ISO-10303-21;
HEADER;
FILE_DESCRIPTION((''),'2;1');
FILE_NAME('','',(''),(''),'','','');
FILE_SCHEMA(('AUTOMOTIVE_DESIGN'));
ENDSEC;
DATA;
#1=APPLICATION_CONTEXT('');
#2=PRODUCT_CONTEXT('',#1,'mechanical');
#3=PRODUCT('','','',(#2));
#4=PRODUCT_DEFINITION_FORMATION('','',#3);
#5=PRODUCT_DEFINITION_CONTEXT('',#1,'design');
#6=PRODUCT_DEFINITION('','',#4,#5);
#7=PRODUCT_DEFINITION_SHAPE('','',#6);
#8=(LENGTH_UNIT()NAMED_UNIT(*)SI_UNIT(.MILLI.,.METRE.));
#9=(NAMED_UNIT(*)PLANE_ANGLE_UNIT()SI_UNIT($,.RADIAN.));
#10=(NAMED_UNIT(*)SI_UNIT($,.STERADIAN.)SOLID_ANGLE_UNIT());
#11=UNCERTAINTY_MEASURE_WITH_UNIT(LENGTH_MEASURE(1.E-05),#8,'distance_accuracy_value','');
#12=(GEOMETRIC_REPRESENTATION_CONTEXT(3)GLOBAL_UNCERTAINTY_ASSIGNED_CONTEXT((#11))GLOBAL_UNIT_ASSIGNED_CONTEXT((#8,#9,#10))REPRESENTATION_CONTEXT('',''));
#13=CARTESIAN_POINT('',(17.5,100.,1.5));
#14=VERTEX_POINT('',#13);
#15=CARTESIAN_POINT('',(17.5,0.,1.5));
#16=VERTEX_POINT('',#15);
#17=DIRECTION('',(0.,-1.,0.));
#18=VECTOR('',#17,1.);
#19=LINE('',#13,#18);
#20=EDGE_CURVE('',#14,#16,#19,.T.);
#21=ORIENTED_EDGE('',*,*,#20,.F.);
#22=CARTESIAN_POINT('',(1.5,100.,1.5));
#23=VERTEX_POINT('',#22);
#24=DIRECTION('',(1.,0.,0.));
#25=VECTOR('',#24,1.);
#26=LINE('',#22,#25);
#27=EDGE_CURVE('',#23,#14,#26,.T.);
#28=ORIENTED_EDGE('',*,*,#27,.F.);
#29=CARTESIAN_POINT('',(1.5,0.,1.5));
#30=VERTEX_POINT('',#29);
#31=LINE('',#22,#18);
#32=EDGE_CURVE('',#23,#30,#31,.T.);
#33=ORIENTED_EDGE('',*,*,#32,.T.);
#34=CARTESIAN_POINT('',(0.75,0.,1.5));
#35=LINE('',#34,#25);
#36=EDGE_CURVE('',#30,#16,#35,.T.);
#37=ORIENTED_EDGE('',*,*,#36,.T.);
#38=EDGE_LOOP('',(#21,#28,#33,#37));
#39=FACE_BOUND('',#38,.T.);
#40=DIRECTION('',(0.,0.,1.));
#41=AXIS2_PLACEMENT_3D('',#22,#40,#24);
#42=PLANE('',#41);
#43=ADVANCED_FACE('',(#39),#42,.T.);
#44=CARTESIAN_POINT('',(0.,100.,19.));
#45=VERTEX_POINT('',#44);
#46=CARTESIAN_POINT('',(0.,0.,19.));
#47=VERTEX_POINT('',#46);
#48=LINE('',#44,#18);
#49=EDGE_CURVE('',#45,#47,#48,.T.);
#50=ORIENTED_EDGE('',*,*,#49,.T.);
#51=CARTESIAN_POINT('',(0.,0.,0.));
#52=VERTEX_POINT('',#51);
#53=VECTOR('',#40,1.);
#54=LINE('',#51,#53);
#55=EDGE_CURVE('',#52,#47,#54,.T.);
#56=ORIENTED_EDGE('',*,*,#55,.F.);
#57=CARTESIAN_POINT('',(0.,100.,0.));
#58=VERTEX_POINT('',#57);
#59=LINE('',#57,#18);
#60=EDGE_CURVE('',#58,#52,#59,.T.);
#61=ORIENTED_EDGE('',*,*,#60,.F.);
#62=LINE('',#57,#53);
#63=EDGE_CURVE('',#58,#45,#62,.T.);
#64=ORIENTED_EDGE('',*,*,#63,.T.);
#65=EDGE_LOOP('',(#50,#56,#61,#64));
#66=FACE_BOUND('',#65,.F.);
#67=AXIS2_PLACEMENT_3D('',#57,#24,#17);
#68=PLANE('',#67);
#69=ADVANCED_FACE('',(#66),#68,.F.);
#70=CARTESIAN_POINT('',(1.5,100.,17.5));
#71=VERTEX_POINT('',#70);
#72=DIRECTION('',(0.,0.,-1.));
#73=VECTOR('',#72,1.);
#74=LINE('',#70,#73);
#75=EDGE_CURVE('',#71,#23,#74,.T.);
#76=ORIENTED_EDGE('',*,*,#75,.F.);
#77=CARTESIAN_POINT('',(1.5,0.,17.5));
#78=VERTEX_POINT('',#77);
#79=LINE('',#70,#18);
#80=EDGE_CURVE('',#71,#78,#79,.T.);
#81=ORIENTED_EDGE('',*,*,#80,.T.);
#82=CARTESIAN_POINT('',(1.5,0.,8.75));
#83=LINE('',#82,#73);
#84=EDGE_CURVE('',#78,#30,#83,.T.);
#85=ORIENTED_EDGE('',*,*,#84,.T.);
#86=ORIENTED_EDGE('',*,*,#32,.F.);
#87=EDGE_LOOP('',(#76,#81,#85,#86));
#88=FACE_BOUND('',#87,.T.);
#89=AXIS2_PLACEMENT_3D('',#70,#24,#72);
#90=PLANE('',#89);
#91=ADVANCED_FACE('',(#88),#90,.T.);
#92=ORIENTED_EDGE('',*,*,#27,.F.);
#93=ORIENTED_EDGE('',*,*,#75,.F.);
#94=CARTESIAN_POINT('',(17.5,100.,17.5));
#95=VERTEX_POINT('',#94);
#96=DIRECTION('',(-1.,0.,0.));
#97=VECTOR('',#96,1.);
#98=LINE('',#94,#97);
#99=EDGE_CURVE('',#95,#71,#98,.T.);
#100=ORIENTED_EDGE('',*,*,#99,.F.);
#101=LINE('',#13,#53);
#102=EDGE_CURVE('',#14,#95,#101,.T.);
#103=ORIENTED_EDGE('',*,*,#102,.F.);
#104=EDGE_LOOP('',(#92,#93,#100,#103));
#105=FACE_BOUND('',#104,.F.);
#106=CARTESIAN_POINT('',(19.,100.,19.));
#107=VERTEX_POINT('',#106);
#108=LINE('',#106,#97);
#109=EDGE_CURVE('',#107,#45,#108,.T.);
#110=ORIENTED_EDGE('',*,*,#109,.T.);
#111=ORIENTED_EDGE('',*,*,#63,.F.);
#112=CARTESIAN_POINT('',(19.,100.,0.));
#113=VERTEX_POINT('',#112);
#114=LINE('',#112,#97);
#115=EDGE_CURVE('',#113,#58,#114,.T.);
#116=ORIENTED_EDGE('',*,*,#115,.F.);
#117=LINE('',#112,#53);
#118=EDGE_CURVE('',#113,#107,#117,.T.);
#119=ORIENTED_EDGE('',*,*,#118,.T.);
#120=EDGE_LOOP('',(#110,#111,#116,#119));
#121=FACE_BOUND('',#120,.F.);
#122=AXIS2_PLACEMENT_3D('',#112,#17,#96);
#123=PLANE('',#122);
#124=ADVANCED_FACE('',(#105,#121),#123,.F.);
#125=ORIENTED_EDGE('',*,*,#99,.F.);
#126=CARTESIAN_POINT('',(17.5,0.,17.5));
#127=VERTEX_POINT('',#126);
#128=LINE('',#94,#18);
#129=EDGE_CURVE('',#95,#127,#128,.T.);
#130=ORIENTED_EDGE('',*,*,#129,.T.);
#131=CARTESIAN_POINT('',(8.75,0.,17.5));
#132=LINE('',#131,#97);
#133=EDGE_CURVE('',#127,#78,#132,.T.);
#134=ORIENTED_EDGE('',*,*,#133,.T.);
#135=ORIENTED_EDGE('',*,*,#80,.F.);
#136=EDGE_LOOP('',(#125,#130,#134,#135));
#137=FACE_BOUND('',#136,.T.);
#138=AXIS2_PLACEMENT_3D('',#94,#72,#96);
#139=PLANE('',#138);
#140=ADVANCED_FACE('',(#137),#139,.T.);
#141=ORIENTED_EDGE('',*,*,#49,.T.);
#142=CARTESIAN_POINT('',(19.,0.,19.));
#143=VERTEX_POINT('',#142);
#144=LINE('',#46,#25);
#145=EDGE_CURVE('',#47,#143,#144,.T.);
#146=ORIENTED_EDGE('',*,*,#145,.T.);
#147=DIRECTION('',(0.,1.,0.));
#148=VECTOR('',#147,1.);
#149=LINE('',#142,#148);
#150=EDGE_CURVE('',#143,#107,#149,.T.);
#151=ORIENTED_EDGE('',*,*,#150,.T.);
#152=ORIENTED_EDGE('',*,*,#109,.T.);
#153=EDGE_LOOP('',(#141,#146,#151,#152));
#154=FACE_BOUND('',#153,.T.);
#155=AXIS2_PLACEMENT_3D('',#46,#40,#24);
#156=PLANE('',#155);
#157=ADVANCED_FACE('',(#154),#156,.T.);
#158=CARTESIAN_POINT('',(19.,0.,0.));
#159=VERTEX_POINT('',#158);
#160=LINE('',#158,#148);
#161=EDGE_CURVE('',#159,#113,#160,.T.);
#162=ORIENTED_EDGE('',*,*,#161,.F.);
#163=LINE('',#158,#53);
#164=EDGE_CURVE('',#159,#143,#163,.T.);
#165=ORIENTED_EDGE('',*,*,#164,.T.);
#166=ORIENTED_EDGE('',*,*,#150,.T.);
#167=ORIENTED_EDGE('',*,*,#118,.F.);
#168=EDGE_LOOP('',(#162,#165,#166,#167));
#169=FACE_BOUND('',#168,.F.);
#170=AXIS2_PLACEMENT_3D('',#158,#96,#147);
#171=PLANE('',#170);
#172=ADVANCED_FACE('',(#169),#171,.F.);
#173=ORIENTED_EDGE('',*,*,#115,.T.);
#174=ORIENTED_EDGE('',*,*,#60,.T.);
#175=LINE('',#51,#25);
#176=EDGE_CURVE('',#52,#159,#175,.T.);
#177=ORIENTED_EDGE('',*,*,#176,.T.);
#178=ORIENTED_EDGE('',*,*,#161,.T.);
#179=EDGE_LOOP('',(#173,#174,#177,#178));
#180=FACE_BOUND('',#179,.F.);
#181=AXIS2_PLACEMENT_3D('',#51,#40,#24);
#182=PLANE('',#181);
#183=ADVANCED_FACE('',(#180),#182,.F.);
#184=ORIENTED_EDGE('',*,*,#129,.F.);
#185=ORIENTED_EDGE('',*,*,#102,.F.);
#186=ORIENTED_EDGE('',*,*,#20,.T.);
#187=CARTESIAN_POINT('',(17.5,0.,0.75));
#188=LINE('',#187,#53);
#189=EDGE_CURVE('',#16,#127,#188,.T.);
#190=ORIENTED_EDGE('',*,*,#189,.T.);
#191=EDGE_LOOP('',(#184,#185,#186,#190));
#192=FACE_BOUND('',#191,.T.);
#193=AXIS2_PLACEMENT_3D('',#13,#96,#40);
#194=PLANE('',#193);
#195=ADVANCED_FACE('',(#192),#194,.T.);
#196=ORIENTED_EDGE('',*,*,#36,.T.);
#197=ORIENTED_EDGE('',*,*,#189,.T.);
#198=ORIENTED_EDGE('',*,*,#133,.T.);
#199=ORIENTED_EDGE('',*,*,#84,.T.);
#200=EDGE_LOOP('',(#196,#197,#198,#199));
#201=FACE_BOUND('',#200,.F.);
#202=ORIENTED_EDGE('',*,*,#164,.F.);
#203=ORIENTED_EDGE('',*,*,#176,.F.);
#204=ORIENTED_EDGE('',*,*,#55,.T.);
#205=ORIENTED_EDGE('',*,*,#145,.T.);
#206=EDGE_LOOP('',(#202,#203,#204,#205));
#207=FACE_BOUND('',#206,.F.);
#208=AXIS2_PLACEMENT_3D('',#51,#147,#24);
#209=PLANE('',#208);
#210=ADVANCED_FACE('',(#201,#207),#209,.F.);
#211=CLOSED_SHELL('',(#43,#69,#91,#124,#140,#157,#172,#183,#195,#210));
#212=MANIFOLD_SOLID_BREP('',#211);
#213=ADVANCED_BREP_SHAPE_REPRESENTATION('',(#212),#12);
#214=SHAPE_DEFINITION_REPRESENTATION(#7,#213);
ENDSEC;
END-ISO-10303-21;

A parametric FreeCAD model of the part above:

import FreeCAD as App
import Part
import Sketcher

doc = App.newDocument("Part")
body = doc.addObject("PartDesign::Body", "Body")

# Sketch on XY plane
sketch1 = body.newObject("Sketcher::SketchObject", "Sketch")
sketch1.AttachmentSupport = (doc.getObject("XY_Plane"), [""])
sketch1.MapMode = "FlatFace"
sketch1.addGeometry(Part.LineSegment(App.Vector(0, 100, 0), App.Vector(0, 0, 0)), False)
sketch1.addGeometry(Part.LineSegment(App.Vector(0, 0, 0), App.Vector(19, 0, 0)), False)
sketch1.addGeometry(Part.LineSegment(App.Vector(19, 0, 0), App.Vector(19, 100, 0)), False)
sketch1.addGeometry(Part.LineSegment(App.Vector(19, 100, 0), App.Vector(0, 100, 0)), False)
sketch1.addConstraint(Sketcher.Constraint("Coincident", 0, 2, 1, 1))
sketch1.addConstraint(Sketcher.Constraint("Coincident", 1, 2, 2, 1))
sketch1.addConstraint(Sketcher.Constraint("Coincident", 2, 2, 3, 1))
sketch1.addConstraint(Sketcher.Constraint("Coincident", 3, 2, 0, 1))
sketch1.addConstraint(Sketcher.Constraint("Vertical", 0))
sketch1.addConstraint(Sketcher.Constraint("Horizontal", 1))
sketch1.addConstraint(Sketcher.Constraint("Vertical", 2))
sketch1.addConstraint(Sketcher.Constraint("Horizontal", 3))
sketch1.addConstraint(Sketcher.Constraint("Coincident", 0, 2, -1, 1))
sketch1.addConstraint(Sketcher.Constraint("DistanceX", 1, 1, 1, 2, 19.0))
sketch1.addConstraint(Sketcher.Constraint("DistanceY", 0, 2, 0, 1, 100.0))
pad1 = body.newObject("PartDesign::Pad", "Pad")
pad1.Profile = sketch1
pad1.Length = 19

# Sketch on XZ plane
sketch2 = body.newObject("Sketcher::SketchObject", "Sketch001")
sketch2.AttachmentSupport = (doc.getObject("XZ_Plane"), [""])
sketch2.MapMode = "FlatFace"
sketch2.AttachmentOffset = App.Placement(App.Vector(0, 0, -100), App.Rotation())
sketch2.addGeometry(Part.LineSegment(App.Vector(2, 2, 0), App.Vector(2, 18, 0)), False)
sketch2.addGeometry(Part.LineSegment(App.Vector(2, 18, 0), App.Vector(18, 18, 0)), False)
sketch2.addGeometry(Part.LineSegment(App.Vector(18, 18, 0), App.Vector(18, 2, 0)), False)
sketch2.addGeometry(Part.LineSegment(App.Vector(18, 2, 0), App.Vector(2, 2, 0)), False)
sketch2.addConstraint(Sketcher.Constraint("Coincident", 0, 2, 1, 1))
sketch2.addConstraint(Sketcher.Constraint("Coincident", 1, 2, 2, 1))
sketch2.addConstraint(Sketcher.Constraint("Coincident", 2, 2, 3, 1))
sketch2.addConstraint(Sketcher.Constraint("Coincident", 3, 2, 0, 1))
sketch2.addConstraint(Sketcher.Constraint("Vertical", 0))
sketch2.addConstraint(Sketcher.Constraint("Horizontal", 1))
sketch2.addConstraint(Sketcher.Constraint("Vertical", 2))
sketch2.addConstraint(Sketcher.Constraint("Horizontal", 3))
sketch2.addConstraint(Sketcher.Constraint("Equal", 3, 0))
sketch2.addConstraint(Sketcher.Constraint("DistanceX", -1, 1, 0, 2, 1.5))
sketch2.addConstraint(Sketcher.Constraint("DistanceY", -1, 1, 2, 2, 1.5))
sketch2.addConstraint(Sketcher.Constraint("DistanceX", 1, 1, 1, 2, 16.0))
pocket1 = body.newObject("PartDesign::Pocket", "Pocket")
pocket1.Profile = sketch2
pocket1.Type = "ThroughAll"
pocket1.Reversed = True

doc.recompute()
